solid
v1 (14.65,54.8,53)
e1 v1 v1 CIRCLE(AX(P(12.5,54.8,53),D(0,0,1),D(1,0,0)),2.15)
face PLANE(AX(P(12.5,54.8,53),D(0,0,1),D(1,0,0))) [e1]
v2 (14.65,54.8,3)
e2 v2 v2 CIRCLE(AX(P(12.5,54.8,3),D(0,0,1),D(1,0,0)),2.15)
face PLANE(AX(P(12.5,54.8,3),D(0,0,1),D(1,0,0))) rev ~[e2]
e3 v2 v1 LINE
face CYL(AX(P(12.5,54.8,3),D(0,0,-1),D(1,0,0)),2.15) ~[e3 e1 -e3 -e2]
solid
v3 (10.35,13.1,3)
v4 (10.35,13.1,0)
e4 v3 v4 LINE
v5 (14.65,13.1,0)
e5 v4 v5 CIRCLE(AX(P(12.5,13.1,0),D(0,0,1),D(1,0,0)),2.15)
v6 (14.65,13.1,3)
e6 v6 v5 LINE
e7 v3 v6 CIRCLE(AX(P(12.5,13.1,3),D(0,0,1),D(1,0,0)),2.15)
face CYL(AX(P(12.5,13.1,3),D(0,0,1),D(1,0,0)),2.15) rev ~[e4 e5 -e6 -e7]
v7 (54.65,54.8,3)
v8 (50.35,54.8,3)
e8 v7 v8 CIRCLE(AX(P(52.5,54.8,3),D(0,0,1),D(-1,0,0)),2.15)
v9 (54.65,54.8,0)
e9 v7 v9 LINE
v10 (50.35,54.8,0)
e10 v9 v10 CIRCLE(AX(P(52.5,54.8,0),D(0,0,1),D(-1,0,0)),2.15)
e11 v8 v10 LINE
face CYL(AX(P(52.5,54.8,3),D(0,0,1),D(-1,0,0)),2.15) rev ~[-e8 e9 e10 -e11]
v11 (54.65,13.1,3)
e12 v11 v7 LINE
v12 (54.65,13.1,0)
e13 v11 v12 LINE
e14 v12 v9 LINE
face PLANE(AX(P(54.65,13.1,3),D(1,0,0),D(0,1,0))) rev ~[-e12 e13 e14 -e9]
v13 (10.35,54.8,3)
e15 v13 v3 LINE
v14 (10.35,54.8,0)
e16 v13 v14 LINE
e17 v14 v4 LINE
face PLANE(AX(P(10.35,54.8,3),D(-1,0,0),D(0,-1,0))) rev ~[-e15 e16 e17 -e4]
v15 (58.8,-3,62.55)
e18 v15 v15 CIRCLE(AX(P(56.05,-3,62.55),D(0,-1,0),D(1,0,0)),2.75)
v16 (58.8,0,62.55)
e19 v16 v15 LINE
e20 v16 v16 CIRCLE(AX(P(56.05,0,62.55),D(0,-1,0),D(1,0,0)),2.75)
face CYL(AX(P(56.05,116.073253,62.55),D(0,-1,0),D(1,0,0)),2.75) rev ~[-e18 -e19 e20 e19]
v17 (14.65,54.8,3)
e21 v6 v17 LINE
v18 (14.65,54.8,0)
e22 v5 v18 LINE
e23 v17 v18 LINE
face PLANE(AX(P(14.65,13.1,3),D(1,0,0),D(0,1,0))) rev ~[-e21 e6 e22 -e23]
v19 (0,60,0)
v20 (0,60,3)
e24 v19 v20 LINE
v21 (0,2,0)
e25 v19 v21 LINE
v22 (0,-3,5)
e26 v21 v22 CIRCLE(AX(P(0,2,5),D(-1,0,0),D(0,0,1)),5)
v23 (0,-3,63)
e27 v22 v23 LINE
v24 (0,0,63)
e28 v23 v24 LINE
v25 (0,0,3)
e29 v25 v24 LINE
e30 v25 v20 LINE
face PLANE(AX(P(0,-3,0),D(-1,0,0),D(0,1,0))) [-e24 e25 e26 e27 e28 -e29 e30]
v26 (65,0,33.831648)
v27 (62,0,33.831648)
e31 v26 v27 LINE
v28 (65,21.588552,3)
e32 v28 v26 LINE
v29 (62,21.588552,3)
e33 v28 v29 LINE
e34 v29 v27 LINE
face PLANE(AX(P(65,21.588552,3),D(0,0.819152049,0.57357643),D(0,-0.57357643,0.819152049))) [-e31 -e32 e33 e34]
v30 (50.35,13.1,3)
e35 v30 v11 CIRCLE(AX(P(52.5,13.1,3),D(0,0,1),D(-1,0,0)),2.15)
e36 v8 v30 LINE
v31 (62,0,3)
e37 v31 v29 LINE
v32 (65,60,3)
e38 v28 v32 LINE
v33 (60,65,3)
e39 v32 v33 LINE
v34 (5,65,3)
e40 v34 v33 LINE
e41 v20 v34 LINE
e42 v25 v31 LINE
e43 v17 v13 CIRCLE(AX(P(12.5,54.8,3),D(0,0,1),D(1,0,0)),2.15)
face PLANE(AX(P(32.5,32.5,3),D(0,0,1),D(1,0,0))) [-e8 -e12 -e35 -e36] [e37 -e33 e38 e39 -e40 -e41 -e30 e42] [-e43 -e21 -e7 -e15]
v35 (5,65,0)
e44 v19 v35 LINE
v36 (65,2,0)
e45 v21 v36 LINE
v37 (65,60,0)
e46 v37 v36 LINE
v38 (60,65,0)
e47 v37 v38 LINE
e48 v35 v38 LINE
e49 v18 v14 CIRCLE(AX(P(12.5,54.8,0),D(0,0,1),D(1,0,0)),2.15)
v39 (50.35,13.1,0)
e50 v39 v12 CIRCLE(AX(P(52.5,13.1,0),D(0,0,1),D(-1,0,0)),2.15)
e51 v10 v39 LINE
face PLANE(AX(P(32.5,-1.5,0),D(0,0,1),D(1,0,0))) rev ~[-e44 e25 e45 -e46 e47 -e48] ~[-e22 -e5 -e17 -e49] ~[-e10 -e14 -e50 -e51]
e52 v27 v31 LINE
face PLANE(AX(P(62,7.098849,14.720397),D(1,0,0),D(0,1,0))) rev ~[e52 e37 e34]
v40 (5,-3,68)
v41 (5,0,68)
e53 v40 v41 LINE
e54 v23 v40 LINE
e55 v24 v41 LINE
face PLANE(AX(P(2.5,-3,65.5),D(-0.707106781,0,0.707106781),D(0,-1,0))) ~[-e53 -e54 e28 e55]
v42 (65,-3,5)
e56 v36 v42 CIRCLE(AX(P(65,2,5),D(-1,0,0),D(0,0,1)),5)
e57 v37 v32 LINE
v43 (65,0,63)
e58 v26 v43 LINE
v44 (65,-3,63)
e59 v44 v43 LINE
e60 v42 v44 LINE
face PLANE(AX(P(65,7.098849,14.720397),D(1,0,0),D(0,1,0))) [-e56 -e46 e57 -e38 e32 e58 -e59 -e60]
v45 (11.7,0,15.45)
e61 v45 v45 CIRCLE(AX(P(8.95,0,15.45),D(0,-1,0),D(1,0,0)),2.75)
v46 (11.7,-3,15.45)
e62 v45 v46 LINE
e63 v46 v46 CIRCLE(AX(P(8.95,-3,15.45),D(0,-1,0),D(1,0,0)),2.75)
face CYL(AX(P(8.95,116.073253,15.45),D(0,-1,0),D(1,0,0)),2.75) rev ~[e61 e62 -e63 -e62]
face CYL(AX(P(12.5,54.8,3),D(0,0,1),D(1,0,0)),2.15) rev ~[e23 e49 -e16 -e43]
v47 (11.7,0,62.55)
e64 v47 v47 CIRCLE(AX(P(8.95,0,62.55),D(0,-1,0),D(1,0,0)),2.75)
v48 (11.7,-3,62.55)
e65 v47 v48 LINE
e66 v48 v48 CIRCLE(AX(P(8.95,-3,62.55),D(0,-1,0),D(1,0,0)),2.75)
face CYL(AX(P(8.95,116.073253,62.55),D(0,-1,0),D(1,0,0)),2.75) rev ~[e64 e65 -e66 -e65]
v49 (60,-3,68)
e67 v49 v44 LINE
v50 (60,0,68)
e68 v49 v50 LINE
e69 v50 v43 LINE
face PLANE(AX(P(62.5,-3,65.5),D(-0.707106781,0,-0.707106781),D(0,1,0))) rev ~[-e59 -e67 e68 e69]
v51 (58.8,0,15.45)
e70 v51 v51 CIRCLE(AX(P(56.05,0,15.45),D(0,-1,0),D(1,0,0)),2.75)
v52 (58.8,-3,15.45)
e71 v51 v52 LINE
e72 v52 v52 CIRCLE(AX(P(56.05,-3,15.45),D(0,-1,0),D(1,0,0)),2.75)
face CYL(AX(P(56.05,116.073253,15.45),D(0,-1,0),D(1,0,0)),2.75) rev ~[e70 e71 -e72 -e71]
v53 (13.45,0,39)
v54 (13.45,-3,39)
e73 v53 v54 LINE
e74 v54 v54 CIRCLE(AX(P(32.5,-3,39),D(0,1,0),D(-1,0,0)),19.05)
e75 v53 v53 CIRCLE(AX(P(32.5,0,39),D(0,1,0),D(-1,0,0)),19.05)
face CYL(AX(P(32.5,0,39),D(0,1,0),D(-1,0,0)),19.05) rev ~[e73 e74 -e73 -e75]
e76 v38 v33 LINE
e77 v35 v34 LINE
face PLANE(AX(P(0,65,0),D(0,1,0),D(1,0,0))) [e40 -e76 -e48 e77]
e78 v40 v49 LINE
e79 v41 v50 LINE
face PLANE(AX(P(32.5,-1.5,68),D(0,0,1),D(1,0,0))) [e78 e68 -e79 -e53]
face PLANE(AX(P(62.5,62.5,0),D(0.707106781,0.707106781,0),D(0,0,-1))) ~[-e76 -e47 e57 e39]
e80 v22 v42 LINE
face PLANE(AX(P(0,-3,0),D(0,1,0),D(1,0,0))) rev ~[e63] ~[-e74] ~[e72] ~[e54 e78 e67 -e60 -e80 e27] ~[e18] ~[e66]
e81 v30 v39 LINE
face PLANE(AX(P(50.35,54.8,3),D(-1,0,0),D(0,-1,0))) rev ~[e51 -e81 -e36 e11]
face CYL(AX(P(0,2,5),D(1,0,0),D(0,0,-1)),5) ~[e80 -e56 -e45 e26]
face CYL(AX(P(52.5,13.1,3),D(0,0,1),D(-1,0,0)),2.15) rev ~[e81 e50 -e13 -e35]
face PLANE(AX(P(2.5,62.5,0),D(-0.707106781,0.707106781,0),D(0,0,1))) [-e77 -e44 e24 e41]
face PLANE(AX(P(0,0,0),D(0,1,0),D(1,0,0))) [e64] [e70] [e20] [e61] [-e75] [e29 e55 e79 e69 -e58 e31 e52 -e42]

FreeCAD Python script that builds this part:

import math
import FreeCAD as App
import Part
import Sketcher
Q = App.Units.Quantity


def edges_at(feature, points):
    """Names of the edges that pass closest to the given points."""
    edges = feature.Shape.Edges
    near = lambda p: min(range(len(edges)), key=lambda i: edges[i].distToShape(Part.Vertex(*p))[0])
    return sorted({f"Edge{near(p) + 1}" for p in points})

doc = App.newDocument("Part")
body = doc.addObject("PartDesign::Body", "Body")

sketch1 = body.newObject("Sketcher::SketchObject", "Sketch")
sketch1.AttachmentSupport = (doc.getObject("XY_Plane"), [""])
sketch1.MapMode = "FlatFace"
sketch1.addGeometry([
    Part.LineSegment(App.Vector(0, 65, 0), App.Vector(0, 0, 0)),
    Part.LineSegment(App.Vector(0, 0, 0), App.Vector(65, 0, 0)),
    Part.LineSegment(App.Vector(65, 0, 0), App.Vector(65, 65, 0)),
    Part.LineSegment(App.Vector(65, 65, 0), App.Vector(0, 65, 0)),
], False)
sketch1.addConstraint([
    Sketcher.Constraint("Coincident", 0, 2, 1, 1),
    Sketcher.Constraint("Coincident", 1, 2, 2, 1),
    Sketcher.Constraint("Coincident", 2, 2, 3, 1),
    Sketcher.Constraint("Coincident", 3, 2, 0, 1),
    Sketcher.Constraint("Vertical", 0),
    Sketcher.Constraint("Horizontal", 1),
    Sketcher.Constraint("Vertical", 2),
    Sketcher.Constraint("Horizontal", 3),
    Sketcher.Constraint("Coincident", 0, 2, -1, 1),
    Sketcher.Constraint("Equal", 3, 0),
    Sketcher.Constraint("DistanceX", 1, 1, 1, 2, Q("65 mm")),
])
pad1 = body.newObject("PartDesign::Pad", "Pad")
pad1.Profile = sketch1
pad1.Length = 3

sketch2 = body.newObject("Sketcher::SketchObject", "Sketch001")
sketch2.AttachmentSupport = (doc.getObject("XY_Plane"), [""])
sketch2.MapMode = "FlatFace"
sketch2.addGeometry([
    Part.LineSegment(App.Vector(0, 0, 0), App.Vector(0, -3, 0)),
    Part.LineSegment(App.Vector(0, -3, 0), App.Vector(65, -3, 0)),
    Part.LineSegment(App.Vector(65, -3, 0), App.Vector(65, 0, 0)),
    Part.LineSegment(App.Vector(65, 0, 0), App.Vector(0, 0, 0)),
], False)
sketch2.addConstraint([
    Sketcher.Constraint("Coincident", 0, 2, 1, 1),
    Sketcher.Constraint("Coincident", 1, 2, 2, 1),
    Sketcher.Constraint("Coincident", 2, 2, 3, 1),
    Sketcher.Constraint("Coincident", 3, 2, 0, 1),
    Sketcher.Constraint("Vertical", 0),
    Sketcher.Constraint("Horizontal", 1),
    Sketcher.Constraint("Vertical", 2),
    Sketcher.Constraint("Horizontal", 3),
    Sketcher.Constraint("Coincident", 3, 2, -1, 1),
    Sketcher.Constraint("DistanceX", 1, 1, 1, 2, Q("65 mm")),
    Sketcher.Constraint("DistanceY", 0, 2, 0, 1, Q("3 mm")),
])
pad2 = body.newObject("PartDesign::Pad", "Pad001")
pad2.Profile = sketch2
pad2.Length = 68
doc.recompute()

fillet = body.newObject("PartDesign::Fillet", "Fillet")
fillet.Base = (pad2, edges_at(pad2, [(32.5, -3, 0)]))
fillet.Radius = 5
doc.recompute()

chamfer = body.newObject("PartDesign::Chamfer", "Chamfer")
chamfer.Base = (fillet, edges_at(fillet, [(65, -1.5, 68), (0, -1.5, 68)]))
chamfer.Size = 5

sketch3 = body.newObject("Sketcher::SketchObject", "Sketch002")
sketch3.AttachmentSupport = (doc.getObject("XZ_Plane"), [""])
sketch3.MapMode = "FlatFace"
sketch3.addGeometry([
    Part.Circle(App.Vector(56, 62.5, 0), App.Vector(0, 0, 1), 2.8),
    Part.Circle(App.Vector(8.9, 62.5, 0), App.Vector(0, 0, 1), 2.8),
    Part.Circle(App.Vector(8.9, 15.4, 0), App.Vector(0, 0, 1), 2.8),
    Part.Circle(App.Vector(56, 15.4, 0), App.Vector(0, 0, 1), 2.8),
], False)
sketch3.addConstraint([
    Sketcher.Constraint("Equal", 0, 1),
    Sketcher.Constraint("Equal", 1, 2),
    Sketcher.Constraint("Equal", 2, 3),
    Sketcher.Constraint("Horizontal", 0, 3, 1, 3),
    Sketcher.Constraint("Horizontal", 2, 3, 3, 3),
    Sketcher.Constraint("Vertical", 1, 3, 2, 3),
    Sketcher.Constraint("Vertical", 0, 3, 3, 3),
    Sketcher.Constraint("Diameter", 0, Q("5.5 mm")),
    Sketcher.Constraint("DistanceX", 1, 3, 0, 3, Q("47.1 mm")),
    Sketcher.Constraint("DistanceY", 2, 3, 1, 3, Q("47.1 mm")),
    Sketcher.Constraint("DistanceX", -1, 1, 0, 3, Q("56.05 mm")),
    Sketcher.Constraint("DistanceY", -1, 1, 0, 3, Q("62.55 mm")),
])
doc.recompute()
hole = body.newObject("PartDesign::Hole", "Hole")
hole.Profile = sketch3
hole.ThreadType = "None"
hole.Diameter = 5.5
hole.DepthType = "ThroughAll"
hole.Reversed = True

sketch4 = body.newObject("Sketcher::SketchObject", "Sketch003")
sketch4.AttachmentSupport = (doc.getObject("XZ_Plane"), [""])
sketch4.MapMode = "FlatFace"
sketch4.addGeometry(Part.Circle(App.Vector(32, 39, 0), App.Vector(0, 0, 1), 19), False)
sketch4.addConstraint([
    Sketcher.Constraint("Diameter", 0, Q("38.1 mm")),
    Sketcher.Constraint("DistanceY", -1, 1, 0, 3, Q("39 mm")),
    Sketcher.Constraint("DistanceX", -1, 1, 0, 3, Q("32.5 mm")),
])
pocket1 = body.newObject("PartDesign::Pocket", "Pocket")
pocket1.Profile = sketch4
pocket1.Length = 25
pocket1.Reversed = True

sketch5 = body.newObject("Sketcher::SketchObject", "Sketch004")
sketch5.AttachmentSupport = (doc.getObject("YZ_Plane"), [""])
sketch5.MapMode = "FlatFace"
sketch5.AttachmentOffset = App.Placement(App.Vector(0, 0, 65), App.Rotation())
sketch5.addGeometry([
    Part.LineSegment(App.Vector(22, 3, 0), App.Vector(0, 34, 0)),
    Part.LineSegment(App.Vector(0, 34, 0), App.Vector(0, 3, 0)),
    Part.LineSegment(App.Vector(0, 3, 0), App.Vector(22, 3, 0)),
], False)
sketch5.addConstraint([
    Sketcher.Constraint("Coincident", 0, 2, 1, 1),
    Sketcher.Constraint("Coincident", 1, 2, 2, 1),
    Sketcher.Constraint("Coincident", 2, 2, 0, 1),
    Sketcher.Constraint("Vertical", 1),
    Sketcher.Constraint("Horizontal", 2),
    Sketcher.Constraint("PointOnObject", 0, 2, -2),
    Sketcher.Constraint("Angle", 0, Q("125 deg")),
    Sketcher.Constraint("DistanceY", -1, 1, 1, 2, Q("3 mm")),
    Sketcher.Constraint("DistanceX", 2, 1, 2, 2, Q("21.588552 mm")),
])
pad3 = body.newObject("PartDesign::Pad", "Pad002")
pad3.Profile = sketch5
pad3.Length = 3
pad3.Reversed = True
doc.recompute()

chamfer2 = body.newObject("PartDesign::Chamfer", "Chamfer001")
chamfer2.Base = (pad3, edges_at(pad3, [(65, 65, 1.5), (0, 65, 1.5)]))
chamfer2.Size = 5

sketch6 = body.newObject("Sketcher::SketchObject", "Sketch005")
sketch6.AttachmentSupport = (doc.getObject("XY_Plane"), [""])
sketch6.MapMode = "FlatFace"
sketch6.AttachmentOffset = App.Placement(App.Vector(0, 0, 3), App.Rotation())
sketch6.addGeometry([
    Part.LineSegment(App.Vector(14.7, 13.1, 0), App.Vector(14.7, 54.8, 0)),
    Part.ArcOfCircle(Part.Circle(App.Vector(12.5, 54.8, 0), App.Vector(0, 0, 1), 2.1), math.radians(0), math.radians(180)),
    Part.LineSegment(App.Vector(10.3, 54.8, 0), App.Vector(10.3, 13.1, 0)),
    Part.ArcOfCircle(Part.Circle(App.Vector(12.5, 13.1, 0), App.Vector(0, 0, 1), 2.1), math.radians(180), math.radians(360)),
    Part.LineSegment(App.Vector(50.4, 54.8, 0), App.Vector(50.4, 13.1, 0)),
    Part.ArcOfCircle(Part.Circle(App.Vector(52.5, 13.1, 0), App.Vector(0, 0, 1), 2.1), math.radians(180), math.radians(360)),
    Part.LineSegment(App.Vector(54.6, 13.1, 0), App.Vector(54.6, 54.8, 0)),
    Part.ArcOfCircle(Part.Circle(App.Vector(52.5, 54.8, 0), App.Vector(0, 0, 1), 2.1), math.radians(0), math.radians(180)),
], False)
sketch6.addConstraint([
    Sketcher.Constraint("Tangent", 0, 2, 1, 1),
    Sketcher.Constraint("Tangent", 1, 2, 2, 1),
    Sketcher.Constraint("Tangent", 2, 2, 3, 1),
    Sketcher.Constraint("Tangent", 3, 2, 0, 1),
    Sketcher.Constraint("Tangent", 4, 2, 5, 1),
    Sketcher.Constraint("Tangent", 5, 2, 6, 1),
    Sketcher.Constraint("Tangent", 6, 2, 7, 1),
    Sketcher.Constraint("Tangent", 7, 2, 4, 1),
    Sketcher.Constraint("Vertical", 0),
    Sketcher.Constraint("Vertical", 2),
    Sketcher.Constraint("Vertical", 4),
    Sketcher.Constraint("Vertical", 6),
    Sketcher.Constraint("Equal", 3, 5),
    Sketcher.Constraint("Horizontal", 3, 3, 5, 3),
    Sketcher.Constraint("Horizontal", 1, 3, 7, 3),
    Sketcher.Constraint("Radius", 1, Q("2.15 mm")),
    Sketcher.Constraint("DistanceY", 0, 1, 0, 2, Q("41.7 mm")),
    Sketcher.Constraint("DistanceX", 3, 3, 5, 3, Q("40 mm")),
    Sketcher.Constraint("DistanceX", -1, 1, 1, 3, Q("12.5 mm")),
    Sketcher.Constraint("DistanceY", -1, 1, 1, 3, Q("54.8 mm")),
])
pocket2 = body.newObject("PartDesign::Pocket", "Pocket001")
pocket2.Profile = sketch6
pocket2.Length = 25
body2 = doc.addObject("PartDesign::Body", "Body001")

sketch7 = body2.newObject("Sketcher::SketchObject", "Sketch006")
sketch7.AttachmentSupport = (doc.getObject("XY_Plane001"), [""])
sketch7.MapMode = "FlatFace"
sketch7.AttachmentOffset = App.Placement(App.Vector(0, 0, 3), App.Rotation())
sketch7.addGeometry(Part.Circle(App.Vector(12.5, 54.8, 0), App.Vector(0, 0, 1), 2.1), False)
sketch7.addConstraint([
    Sketcher.Constraint("Diameter", 0, Q("4.3 mm")),
    Sketcher.Constraint("DistanceX", -1, 1, 0, 3, Q("12.5 mm")),
    Sketcher.Constraint("DistanceY", -1, 1, 0, 3, Q("54.8 mm")),
])
pad4 = body2.newObject("PartDesign::Pad", "Pad003")
pad4.Profile = sketch7
pad4.Length = 50

doc.recompute()
